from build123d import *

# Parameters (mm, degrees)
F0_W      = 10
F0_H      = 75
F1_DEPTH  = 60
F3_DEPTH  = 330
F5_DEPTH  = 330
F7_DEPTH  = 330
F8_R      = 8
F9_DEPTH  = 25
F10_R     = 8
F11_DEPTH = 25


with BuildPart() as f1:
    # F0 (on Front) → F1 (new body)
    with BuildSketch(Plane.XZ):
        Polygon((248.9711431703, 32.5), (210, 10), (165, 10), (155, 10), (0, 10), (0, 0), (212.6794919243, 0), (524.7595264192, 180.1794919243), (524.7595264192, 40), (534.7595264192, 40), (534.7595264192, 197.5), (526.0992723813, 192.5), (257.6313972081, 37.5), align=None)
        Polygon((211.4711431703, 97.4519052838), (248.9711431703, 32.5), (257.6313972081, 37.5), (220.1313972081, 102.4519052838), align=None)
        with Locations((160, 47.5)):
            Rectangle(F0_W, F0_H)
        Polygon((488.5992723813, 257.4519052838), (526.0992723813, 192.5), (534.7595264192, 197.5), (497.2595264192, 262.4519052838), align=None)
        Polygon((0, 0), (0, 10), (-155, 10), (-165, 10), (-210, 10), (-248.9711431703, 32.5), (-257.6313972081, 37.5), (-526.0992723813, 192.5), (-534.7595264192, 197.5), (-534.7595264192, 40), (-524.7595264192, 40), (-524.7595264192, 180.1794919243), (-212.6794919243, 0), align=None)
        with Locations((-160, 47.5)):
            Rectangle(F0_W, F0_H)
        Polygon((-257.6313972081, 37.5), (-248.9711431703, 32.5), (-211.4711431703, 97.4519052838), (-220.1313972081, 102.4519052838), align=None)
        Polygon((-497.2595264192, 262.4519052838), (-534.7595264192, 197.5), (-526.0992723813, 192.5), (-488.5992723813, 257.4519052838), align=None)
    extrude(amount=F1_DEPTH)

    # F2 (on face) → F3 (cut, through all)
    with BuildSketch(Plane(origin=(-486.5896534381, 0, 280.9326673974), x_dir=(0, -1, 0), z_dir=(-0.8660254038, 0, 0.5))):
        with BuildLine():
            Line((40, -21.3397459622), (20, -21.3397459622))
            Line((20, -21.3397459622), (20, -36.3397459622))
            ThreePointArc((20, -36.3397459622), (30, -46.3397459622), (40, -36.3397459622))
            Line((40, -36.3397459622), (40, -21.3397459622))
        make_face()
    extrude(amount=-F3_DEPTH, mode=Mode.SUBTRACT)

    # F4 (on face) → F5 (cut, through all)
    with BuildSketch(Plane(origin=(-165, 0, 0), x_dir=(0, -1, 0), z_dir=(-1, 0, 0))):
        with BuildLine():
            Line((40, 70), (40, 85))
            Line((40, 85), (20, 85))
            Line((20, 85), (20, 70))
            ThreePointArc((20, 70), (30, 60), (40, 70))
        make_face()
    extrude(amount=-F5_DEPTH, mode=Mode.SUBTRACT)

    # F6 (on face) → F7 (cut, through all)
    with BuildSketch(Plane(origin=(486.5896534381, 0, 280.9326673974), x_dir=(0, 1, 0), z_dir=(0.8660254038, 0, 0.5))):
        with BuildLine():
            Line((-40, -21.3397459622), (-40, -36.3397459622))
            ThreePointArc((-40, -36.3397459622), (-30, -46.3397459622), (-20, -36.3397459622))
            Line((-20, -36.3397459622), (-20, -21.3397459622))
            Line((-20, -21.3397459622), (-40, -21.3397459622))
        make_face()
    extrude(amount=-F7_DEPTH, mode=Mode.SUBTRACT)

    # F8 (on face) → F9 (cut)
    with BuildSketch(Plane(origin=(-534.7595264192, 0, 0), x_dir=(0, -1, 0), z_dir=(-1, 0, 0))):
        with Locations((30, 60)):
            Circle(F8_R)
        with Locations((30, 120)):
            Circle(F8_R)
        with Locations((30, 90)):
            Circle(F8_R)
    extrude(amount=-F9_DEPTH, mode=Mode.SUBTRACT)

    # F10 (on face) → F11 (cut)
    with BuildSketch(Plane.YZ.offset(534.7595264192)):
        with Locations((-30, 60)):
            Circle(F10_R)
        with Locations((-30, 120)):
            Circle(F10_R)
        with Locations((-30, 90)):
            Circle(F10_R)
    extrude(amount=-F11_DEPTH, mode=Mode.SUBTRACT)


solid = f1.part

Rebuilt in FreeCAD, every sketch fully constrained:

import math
import FreeCAD as App
import Part
import Sketcher
from FreeCAD import Vector
Q = App.Units.Quantity

doc = App.newDocument("Part")
body = doc.addObject("PartDesign::Body", "Body")

sketch1 = body.newObject("Sketcher::SketchObject", "Sketch")
sketch1.AttachmentSupport = (doc.getObject("XZ_Plane"), [""])
sketch1.MapMode = "FlatFace"
sketch1.addGeometry([
    Part.LineSegment(Vector(248.971143, 32.5, 0), Vector(210, 10, 0)),
    Part.LineSegment(Vector(210, 10, 0), Vector(165, 10, 0)),
    Part.LineSegment(Vector(165, 10, 0), Vector(165, 85, 0)),
    Part.LineSegment(Vector(165, 85, 0), Vector(155, 85, 0)),
    Part.LineSegment(Vector(155, 85, 0), Vector(155, 10, 0)),
    Part.LineSegment(Vector(155, 10, 0), Vector(-155, 10, 0)),
    Part.LineSegment(Vector(-155, 10, 0), Vector(-155, 85, 0)),
    Part.LineSegment(Vector(-155, 85, 0), Vector(-165, 85, 0)),
    Part.LineSegment(Vector(-165, 85, 0), Vector(-165, 10, 0)),
    Part.LineSegment(Vector(-165, 10, 0), Vector(-210, 10, 0)),
    Part.LineSegment(Vector(-210, 10, 0), Vector(-248.971143, 32.5, 0)),
    Part.LineSegment(Vector(-248.971143, 32.5, 0), Vector(-211.471143, 97.451905, 0)),
    Part.LineSegment(Vector(-211.471143, 97.451905, 0), Vector(-220.131397, 102.451905, 0)),
    Part.LineSegment(Vector(-220.131397, 102.451905, 0), Vector(-257.631397, 37.5, 0)),
    Part.LineSegment(Vector(-257.631397, 37.5, 0), Vector(-526.099272, 192.5, 0)),
    Part.LineSegment(Vector(-526.099272, 192.5, 0), Vector(-488.599272, 257.451905, 0)),
    Part.LineSegment(Vector(-488.599272, 257.451905, 0), Vector(-497.259526, 262.451905, 0)),
    Part.LineSegment(Vector(-497.259526, 262.451905, 0), Vector(-534.759526, 197.5, 0)),
    Part.LineSegment(Vector(-534.759526, 197.5, 0), Vector(-534.759526, 40, 0)),
    Part.LineSegment(Vector(-534.759526, 40, 0), Vector(-524.759526, 40, 0)),
    Part.LineSegment(Vector(-524.759526, 40, 0), Vector(-524.759526, 180.179492, 0)),
    Part.LineSegment(Vector(-524.759526, 180.179492, 0), Vector(-212.679492, 0, 0)),
    Part.LineSegment(Vector(-212.679492, 0, 0), Vector(212.679492, 0, 0)),
    Part.LineSegment(Vector(212.679492, 0, 0), Vector(524.759526, 180.179492, 0)),
    Part.LineSegment(Vector(524.759526, 180.179492, 0), Vector(524.759526, 40, 0)),
    Part.LineSegment(Vector(524.759526, 40, 0), Vector(534.759526, 40, 0)),
    Part.LineSegment(Vector(534.759526, 40, 0), Vector(534.759526, 197.5, 0)),
    Part.LineSegment(Vector(534.759526, 197.5, 0), Vector(497.259526, 262.451905, 0)),
    Part.LineSegment(Vector(497.259526, 262.451905, 0), Vector(488.599272, 257.451905, 0)),
    Part.LineSegment(Vector(488.599272, 257.451905, 0), Vector(526.099272, 192.5, 0)),
    Part.LineSegment(Vector(526.099272, 192.5, 0), Vector(257.631397, 37.5, 0)),
    Part.LineSegment(Vector(257.631397, 37.5, 0), Vector(220.131397, 102.451905, 0)),
    Part.LineSegment(Vector(220.131397, 102.451905, 0), Vector(211.471143, 97.451905, 0)),
    Part.LineSegment(Vector(211.471143, 97.451905, 0), Vector(248.971143, 32.5, 0)),
], False)
sketch1.addConstraint([
    Sketcher.Constraint("Coincident", 0, 2, 1, 1),
    Sketcher.Constraint("Coincident", 1, 2, 2, 1),
    Sketcher.Constraint("Coincident", 2, 2, 3, 1),
    Sketcher.Constraint("Coincident", 3, 2, 4, 1),
    Sketcher.Constraint("Coincident", 4, 2, 5, 1),
    Sketcher.Constraint("Coincident", 5, 2, 6, 1),
    Sketcher.Constraint("Coincident", 6, 2, 7, 1),
    Sketcher.Constraint("Coincident", 7, 2, 8, 1),
    Sketcher.Constraint("Coincident", 8, 2, 9, 1),
    Sketcher.Constraint("Coincident", 9, 2, 10, 1),
    Sketcher.Constraint("Coincident", 10, 2, 11, 1),
    Sketcher.Constraint("Coincident", 11, 2, 12, 1),
    Sketcher.Constraint("Coincident", 12, 2, 13, 1),
    Sketcher.Constraint("Coincident", 13, 2, 14, 1),
    Sketcher.Constraint("Coincident", 14, 2, 15, 1),
    Sketcher.Constraint("Coincident", 15, 2, 16, 1),
    Sketcher.Constraint("Coincident", 16, 2, 17, 1),
    Sketcher.Constraint("Coincident", 17, 2, 18, 1),
    Sketcher.Constraint("Coincident", 18, 2, 19, 1),
    Sketcher.Constraint("Coincident", 19, 2, 20, 1),
    Sketcher.Constraint("Coincident", 20, 2, 21, 1),
    Sketcher.Constraint("Coincident", 21, 2, 22, 1),
    Sketcher.Constraint("Coincident", 22, 2, 23, 1),
    Sketcher.Constraint("Coincident", 23, 2, 24, 1),
    Sketcher.Constraint("Coincident", 24, 2, 25, 1),
    Sketcher.Constraint("Coincident", 25, 2, 26, 1),
    Sketcher.Constraint("Coincident", 26, 2, 27, 1),
    Sketcher.Constraint("Coincident", 27, 2, 28, 1),
    Sketcher.Constraint("Coincident", 28, 2, 29, 1),
    Sketcher.Constraint("Coincident", 29, 2, 30, 1),
    Sketcher.Constraint("Coincident", 30, 2, 31, 1),
    Sketcher.Constraint("Coincident", 31, 2, 32, 1),
    Sketcher.Constraint("Coincident", 32, 2, 33, 1),
    Sketcher.Constraint("Coincident", 33, 2, 0, 1),
    Sketcher.Constraint("Horizontal", 1),
    Sketcher.Constraint("Vertical", 2),
    Sketcher.Constraint("Horizontal", 3),
    Sketcher.Constraint("Vertical", 4),
    Sketcher.Constraint("Horizontal", 5),
    Sketcher.Constraint("Vertical", 6),
    Sketcher.Constraint("Horizontal", 7),
    Sketcher.Constraint("Vertical", 8),
    Sketcher.Constraint("Horizontal", 9),
    Sketcher.Constraint("Vertical", 18),
    Sketcher.Constraint("Horizontal", 19),
    Sketcher.Constraint("Vertical", 20),
    Sketcher.Constraint("Horizontal", 22),
    Sketcher.Constraint("Vertical", 24),
    Sketcher.Constraint("Horizontal", 25),
    Sketcher.Constraint("Vertical", 26),
    Sketcher.Constraint("Symmetric", 21, 2, 22, 2, -1, 1),
    Sketcher.Constraint("Symmetric", 3, 2, 6, 2, -2),
    Sketcher.Constraint("Symmetric", 1, 2, 8, 2, -2),
    Sketcher.Constraint("Symmetric", 20, 2, 23, 2, -2),
    Sketcher.Constraint("Symmetric", 18, 2, 25, 2, -2),
    Sketcher.Constraint("Symmetric", 16, 2, 27, 2, -2),
    Sketcher.Constraint("Symmetric", 15, 2, 28, 2, -2),
    Sketcher.Constraint("Symmetric", 14, 2, 29, 2, -2),
    Sketcher.Constraint("Symmetric", 13, 2, 30, 2, -2),
    Sketcher.Constraint("Symmetric", 12, 2, 31, 2, -2),
    Sketcher.Constraint("Symmetric", 11, 2, 32, 2, -2),
    Sketcher.Constraint("Symmetric", 10, 2, 33, 2, -2),
    Sketcher.Constraint("Perpendicular", 10, 11),
    Sketcher.Constraint("Perpendicular", 11, 12),
    Sketcher.Constraint("Perpendicular", 12, 13),
    Sketcher.Constraint("Perpendicular", 13, 14),
    Sketcher.Constraint("Perpendicular", 14, 15),
    Sketcher.Constraint("Perpendicular", 15, 16),
    Sketcher.Constraint("Perpendicular", 16, 17),
    Sketcher.Constraint("Perpendicular", 17, 21),
    Sketcher.Constraint("Parallel", 0, 23),
    Sketcher.Constraint("Perpendicular", 23, 27),
    Sketcher.Constraint("Horizontal", 1, 2, 4, 2),
    Sketcher.Constraint("Equal", 7, 19),
    Sketcher.Constraint("Equal", 11, 13),
    Sketcher.Constraint("Equal", 13, 15),
    Sketcher.Constraint("Equal", 12, 16),
    Sketcher.Constraint("Equal", 15, 17),
    Sketcher.Constraint("DistanceX", 1, 2, 1, 1, Q("45 mm")),
    Sketcher.Constraint("DistanceX", 3, 2, 3, 1, Q("10 mm")),
    Sketcher.Constraint("DistanceX", 5, 2, 5, 1, Q("310 mm")),
    Sketcher.Constraint("DistanceY", 2, 1, 2, 2, Q("75 mm")),
    Sketcher.Constraint("Angle", 0, Q("-150 deg")),
    Sketcher.Constraint("Distance", 0, Q("45 mm")),
    Sketcher.Constraint("Distance", 11, Q("75 mm")),
    Sketcher.Constraint("Distance", 12, Q("10 mm")),
    Sketcher.Constraint("Distance", 14, Q("310 mm")),
    Sketcher.Constraint("DistanceY", 18, 2, 18, 1, Q("157.5 mm")),
    Sketcher.Constraint("DistanceY", -1, 1, 0, 2, Q("10 mm")),
    Sketcher.Constraint("DistanceY", 20, 1, 20, 2, Q("140.179492 mm")),
])
pad1 = body.newObject("PartDesign::Pad", "Pad")
pad1.Profile = sketch1
pad1.Length = 60

sketch2 = body.newObject("Sketcher::SketchObject", "Sketch001")
sketch2.Placement = App.Placement(Vector(-486.589653, 0, 280.932667), App.Rotation(Vector(0, -1, 0), Vector(0.5, 0, 0.866025404), Vector(-0.866025404, 0, 0.5), "ZXY"))
sketch2.addGeometry([
    Part.LineSegment(Vector(40, -21.339746, 0), Vector(20, -21.339746, 0)),
    Part.LineSegment(Vector(20, -21.339746, 0), Vector(20, -36.339746, 0)),
    Part.ArcOfCircle(Part.Circle(Vector(30, -36.339746, 0), Vector(0, 0, 1), 10), math.radians(180), math.radians(360)),
    Part.LineSegment(Vector(40, -36.339746, 0), Vector(40, -21.339746, 0)),
], False)
sketch2.addConstraint([
    Sketcher.Constraint("Coincident", 0, 2, 1, 1),
    Sketcher.Constraint("Tangent", 1, 2, 2, 1),
    Sketcher.Constraint("Tangent", 2, 2, 3, 1),
    Sketcher.Constraint("Coincident", 3, 2, 0, 1),
    Sketcher.Constraint("Horizontal", 0),
    Sketcher.Constraint("Vertical", 1),
    Sketcher.Constraint("Vertical", 3),
    Sketcher.Constraint("Radius", 2, Q("10 mm")),
    Sketcher.Constraint("DistanceY", 1, 2, 1, 1, Q("15 mm")),
    Sketcher.Constraint("DistanceX", -1, 1, 2, 3, Q("30 mm")),
    Sketcher.Constraint("DistanceY", 2, 3, -1, 1, Q("36.339746 mm")),
])
pocket1 = body.newObject("PartDesign::Pocket", "Pocket")
pocket1.Profile = sketch2
pocket1.Length = 330

sketch3 = body.newObject("Sketcher::SketchObject", "Sketch002")
sketch3.AttachmentSupport = (doc.getObject("YZ_Plane"), [""])
sketch3.MapMode = "FlatFace"
sketch3.AttachmentOffset = App.Placement(Vector(0, 0, -165), App.Rotation())
sketch3.addGeometry([
    Part.LineSegment(Vector(-40, 70, 0), Vector(-40, 85, 0)),
    Part.LineSegment(Vector(-40, 85, 0), Vector(-20, 85, 0)),
    Part.LineSegment(Vector(-20, 85, 0), Vector(-20, 70, 0)),
    Part.ArcOfCircle(Part.Circle(Vector(-30, 70, 0), Vector(0, 0, 1), 10), math.radians(180), math.radians(360)),
], False)
sketch3.addConstraint([
    Sketcher.Constraint("Coincident", 0, 2, 1, 1),
    Sketcher.Constraint("Coincident", 1, 2, 2, 1),
    Sketcher.Constraint("Tangent", 2, 2, 3, 2),
    Sketcher.Constraint("Tangent", 3, 1, 0, 1),
    Sketcher.Constraint("Vertical", 0),
    Sketcher.Constraint("Horizontal", 1),
    Sketcher.Constraint("Vertical", 2),
    Sketcher.Constraint("Radius", 3, Q("10 mm")),
    Sketcher.Constraint("DistanceY", 0, 1, 0, 2, Q("15 mm")),
    Sketcher.Constraint("DistanceX", 3, 3, -1, 1, Q("30 mm")),
    Sketcher.Constraint("DistanceY", -1, 1, 3, 3, Q("70 mm")),
])
pocket2 = body.newObject("PartDesign::Pocket", "Pocket001")
pocket2.Profile = sketch3
pocket2.Length = 330
pocket2.Reversed = True

sketch4 = body.newObject("Sketcher::SketchObject", "Sketch003")
sketch4.Placement = App.Placement(Vector(486.589653, 0, 280.932667), App.Rotation(Vector(0, 1, 0), Vector(-0.5, 0, 0.866025404), Vector(0.866025404, 0, 0.5), "ZXY"))
sketch4.addGeometry([
    Part.LineSegment(Vector(-40, -21.339746, 0), Vector(-40, -36.339746, 0)),
    Part.ArcOfCircle(Part.Circle(Vector(-30, -36.339746, 0), Vector(0, 0, 1), 10), math.radians(180), math.radians(360)),
    Part.LineSegment(Vector(-20, -36.339746, 0), Vector(-20, -21.339746, 0)),
    Part.LineSegment(Vector(-20, -21.339746, 0), Vector(-40, -21.339746, 0)),
], False)
sketch4.addConstraint([
    Sketcher.Constraint("Tangent", 0, 2, 1, 1),
    Sketcher.Constraint("Tangent", 1, 2, 2, 1),
    Sketcher.Constraint("Coincident", 2, 2, 3, 1),
    Sketcher.Constraint("Coincident", 3, 2, 0, 1),
    Sketcher.Constraint("Vertical", 0),
    Sketcher.Constraint("Vertical", 2),
    Sketcher.Constraint("Horizontal", 3),
    Sketcher.Constraint("Radius", 1, Q("10 mm")),
    Sketcher.Constraint("DistanceY", 0, 2, 0, 1, Q("15 mm")),
    Sketcher.Constraint("DistanceX", 1, 3, -1, 1, Q("30 mm")),
    Sketcher.Constraint("DistanceY", 1, 3, -1, 1, Q("36.339746 mm")),
])
pocket3 = body.newObject("PartDesign::Pocket", "Pocket002")
pocket3.Profile = sketch4
pocket3.Length = 330

sketch5 = body.newObject("Sketcher::SketchObject", "Sketch004")
sketch5.AttachmentSupport = (doc.getObject("YZ_Plane"), [""])
sketch5.MapMode = "FlatFace"
sketch5.AttachmentOffset = App.Placement(Vector(0, 0, -534.759526), App.Rotation())
sketch5.addGeometry([
    Part.Circle(Vector(-30, 60, 0), Vector(0, 0, 1), 8),
    Part.Circle(Vector(-30, 120, 0), Vector(0, 0, 1), 8),
    Part.Circle(Vector(-30, 90, 0), Vector(0, 0, 1), 8),
], False)
sketch5.addConstraint([
    Sketcher.Constraint("Equal", 0, 1),
    Sketcher.Constraint("Equal", 1, 2),
    Sketcher.Constraint("Vertical", 0, 3, 1, 3),
    Sketcher.Constraint("Vertical", 1, 3, 2, 3),
    Sketcher.Constraint("Diameter", 0, Q("16 mm")),
    Sketcher.Constraint("DistanceX", 0, 3, -1, 1, Q("30 mm")),
    Sketcher.Constraint("DistanceY", -1, 1, 0, 3, Q("60 mm")),
    Sketcher.Constraint("DistanceY", -1, 1, 1, 3, Q("120 mm")),
    Sketcher.Constraint("DistanceY", -1, 1, 2, 3, Q("90 mm")),
])
pocket4 = body.newObject("PartDesign::Pocket", "Pocket003")
pocket4.Profile = sketch5
pocket4.Length = 25
pocket4.Reversed = True

sketch6 = body.newObject("Sketcher::SketchObject", "Sketch005")
sketch6.AttachmentSupport = (doc.getObject("YZ_Plane"), [""])
sketch6.MapMode = "FlatFace"
sketch6.AttachmentOffset = App.Placement(Vector(0, 0, 534.759526), App.Rotation())
sketch6.addGeometry([
    Part.Circle(Vector(-30, 60, 0), Vector(0, 0, 1), 8),
    Part.Circle(Vector(-30, 120, 0), Vector(0, 0, 1), 8),
    Part.Circle(Vector(-30, 90, 0), Vector(0, 0, 1), 8),
], False)
sketch6.addConstraint([
    Sketcher.Constraint("Equal", 0, 1),
    Sketcher.Constraint("Equal", 1, 2),
    Sketcher.Constraint("Vertical", 0, 3, 1, 3),
    Sketcher.Constraint("Vertical", 1, 3, 2, 3),
    Sketcher.Constraint("Diameter", 0, Q("16 mm")),
    Sketcher.Constraint("DistanceX", 0, 3, -1, 1, Q("30 mm")),
    Sketcher.Constraint("DistanceY", -1, 1, 0, 3, Q("60 mm")),
    Sketcher.Constraint("DistanceY", -1, 1, 1, 3, Q("120 mm")),
    Sketcher.Constraint("DistanceY", -1, 1, 2, 3, Q("90 mm")),
])
pocket5 = body.newObject("PartDesign::Pocket", "Pocket004")
pocket5.Profile = sketch6
pocket5.Length = 25

doc.recompute()
